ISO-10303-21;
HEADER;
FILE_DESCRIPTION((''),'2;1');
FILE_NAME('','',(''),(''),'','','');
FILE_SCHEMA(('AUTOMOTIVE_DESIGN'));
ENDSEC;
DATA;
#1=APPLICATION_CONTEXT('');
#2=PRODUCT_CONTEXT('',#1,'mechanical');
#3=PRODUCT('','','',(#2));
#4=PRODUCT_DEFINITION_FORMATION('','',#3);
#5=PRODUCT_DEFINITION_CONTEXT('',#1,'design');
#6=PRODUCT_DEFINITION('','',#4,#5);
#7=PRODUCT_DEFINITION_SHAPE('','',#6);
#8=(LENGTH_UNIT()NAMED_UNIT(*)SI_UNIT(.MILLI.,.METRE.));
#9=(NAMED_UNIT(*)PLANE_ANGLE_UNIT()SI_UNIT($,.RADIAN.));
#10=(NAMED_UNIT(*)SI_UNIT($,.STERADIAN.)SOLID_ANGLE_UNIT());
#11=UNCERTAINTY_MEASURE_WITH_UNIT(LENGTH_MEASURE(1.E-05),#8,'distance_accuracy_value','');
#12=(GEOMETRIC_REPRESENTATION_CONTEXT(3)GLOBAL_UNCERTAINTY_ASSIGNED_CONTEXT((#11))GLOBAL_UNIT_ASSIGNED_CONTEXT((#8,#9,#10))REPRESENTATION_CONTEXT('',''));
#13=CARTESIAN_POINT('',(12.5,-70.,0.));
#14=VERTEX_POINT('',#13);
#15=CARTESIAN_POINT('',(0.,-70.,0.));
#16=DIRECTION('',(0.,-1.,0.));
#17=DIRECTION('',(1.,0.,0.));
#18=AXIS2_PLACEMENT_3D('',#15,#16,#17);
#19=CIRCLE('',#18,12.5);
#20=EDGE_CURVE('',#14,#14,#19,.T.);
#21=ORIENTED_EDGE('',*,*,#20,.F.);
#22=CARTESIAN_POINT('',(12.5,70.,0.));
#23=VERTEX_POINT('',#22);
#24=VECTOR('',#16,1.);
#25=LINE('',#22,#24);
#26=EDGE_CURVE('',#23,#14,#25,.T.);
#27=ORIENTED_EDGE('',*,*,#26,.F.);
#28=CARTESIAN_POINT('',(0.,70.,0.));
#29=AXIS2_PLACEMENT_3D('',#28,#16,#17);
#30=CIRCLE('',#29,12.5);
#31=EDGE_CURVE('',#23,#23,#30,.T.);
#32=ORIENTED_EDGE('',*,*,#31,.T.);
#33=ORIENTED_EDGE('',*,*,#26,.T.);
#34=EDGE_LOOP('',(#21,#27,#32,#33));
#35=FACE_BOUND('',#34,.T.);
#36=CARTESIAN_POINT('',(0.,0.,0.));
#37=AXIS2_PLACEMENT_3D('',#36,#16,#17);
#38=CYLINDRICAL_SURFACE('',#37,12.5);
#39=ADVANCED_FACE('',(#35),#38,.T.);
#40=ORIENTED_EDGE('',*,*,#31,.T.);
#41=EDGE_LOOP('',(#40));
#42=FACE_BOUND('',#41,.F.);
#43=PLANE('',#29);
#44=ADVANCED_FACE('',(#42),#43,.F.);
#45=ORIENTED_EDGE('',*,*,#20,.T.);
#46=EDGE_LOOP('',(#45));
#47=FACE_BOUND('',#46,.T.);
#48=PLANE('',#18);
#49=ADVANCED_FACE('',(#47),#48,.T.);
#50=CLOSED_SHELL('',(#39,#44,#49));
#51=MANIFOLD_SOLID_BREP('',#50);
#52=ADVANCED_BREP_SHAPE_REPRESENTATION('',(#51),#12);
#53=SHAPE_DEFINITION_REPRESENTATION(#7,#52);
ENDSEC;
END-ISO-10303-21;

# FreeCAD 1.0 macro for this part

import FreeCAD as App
import Part
import Sketcher

V = App.Vector

doc = App.newDocument("Part")
body = doc.addObject("PartDesign::Body", "Body")

sketch1 = doc.addObject("Sketcher::SketchObject", "Sketch")
body.addObject(sketch1)
sketch1.AttachmentSupport = (doc.XZ_Plane, [""])
sketch1.MapMode = "FlatFace"
sketch1.addGeometry(Part.Circle(V(0, 0, 0), V(0, 0, 1), 12), False)
sketch1.addConstraint(Sketcher.Constraint("Coincident", 0, 3, -1, 1))
sketch1.addConstraint(Sketcher.Constraint("Diameter", 0, 25.0))
pad1 = doc.addObject("PartDesign::Pad", "Pad")
body.addObject(pad1)
pad1.Profile = sketch1
pad1.Length = 70

sketch2 = doc.addObject("Sketcher::SketchObject", "Sketch001")
body.addObject(sketch2)
sketch2.AttachmentSupport = (doc.XZ_Plane, [""])
sketch2.MapMode = "FlatFace"
sketch2.addGeometry(Part.Circle(V(0, 0, 0), V(0, 0, 1), 12), False)
sketch2.addConstraint(Sketcher.Constraint("Coincident", 0, 3, -1, 1))
sketch2.addConstraint(Sketcher.Constraint("Diameter", 0, 25.0))
pad2 = doc.addObject("PartDesign::Pad", "Pad001")
body.addObject(pad2)
pad2.Profile = sketch2
pad2.Length = 70
pad2.Reversed = True

doc.recompute()
